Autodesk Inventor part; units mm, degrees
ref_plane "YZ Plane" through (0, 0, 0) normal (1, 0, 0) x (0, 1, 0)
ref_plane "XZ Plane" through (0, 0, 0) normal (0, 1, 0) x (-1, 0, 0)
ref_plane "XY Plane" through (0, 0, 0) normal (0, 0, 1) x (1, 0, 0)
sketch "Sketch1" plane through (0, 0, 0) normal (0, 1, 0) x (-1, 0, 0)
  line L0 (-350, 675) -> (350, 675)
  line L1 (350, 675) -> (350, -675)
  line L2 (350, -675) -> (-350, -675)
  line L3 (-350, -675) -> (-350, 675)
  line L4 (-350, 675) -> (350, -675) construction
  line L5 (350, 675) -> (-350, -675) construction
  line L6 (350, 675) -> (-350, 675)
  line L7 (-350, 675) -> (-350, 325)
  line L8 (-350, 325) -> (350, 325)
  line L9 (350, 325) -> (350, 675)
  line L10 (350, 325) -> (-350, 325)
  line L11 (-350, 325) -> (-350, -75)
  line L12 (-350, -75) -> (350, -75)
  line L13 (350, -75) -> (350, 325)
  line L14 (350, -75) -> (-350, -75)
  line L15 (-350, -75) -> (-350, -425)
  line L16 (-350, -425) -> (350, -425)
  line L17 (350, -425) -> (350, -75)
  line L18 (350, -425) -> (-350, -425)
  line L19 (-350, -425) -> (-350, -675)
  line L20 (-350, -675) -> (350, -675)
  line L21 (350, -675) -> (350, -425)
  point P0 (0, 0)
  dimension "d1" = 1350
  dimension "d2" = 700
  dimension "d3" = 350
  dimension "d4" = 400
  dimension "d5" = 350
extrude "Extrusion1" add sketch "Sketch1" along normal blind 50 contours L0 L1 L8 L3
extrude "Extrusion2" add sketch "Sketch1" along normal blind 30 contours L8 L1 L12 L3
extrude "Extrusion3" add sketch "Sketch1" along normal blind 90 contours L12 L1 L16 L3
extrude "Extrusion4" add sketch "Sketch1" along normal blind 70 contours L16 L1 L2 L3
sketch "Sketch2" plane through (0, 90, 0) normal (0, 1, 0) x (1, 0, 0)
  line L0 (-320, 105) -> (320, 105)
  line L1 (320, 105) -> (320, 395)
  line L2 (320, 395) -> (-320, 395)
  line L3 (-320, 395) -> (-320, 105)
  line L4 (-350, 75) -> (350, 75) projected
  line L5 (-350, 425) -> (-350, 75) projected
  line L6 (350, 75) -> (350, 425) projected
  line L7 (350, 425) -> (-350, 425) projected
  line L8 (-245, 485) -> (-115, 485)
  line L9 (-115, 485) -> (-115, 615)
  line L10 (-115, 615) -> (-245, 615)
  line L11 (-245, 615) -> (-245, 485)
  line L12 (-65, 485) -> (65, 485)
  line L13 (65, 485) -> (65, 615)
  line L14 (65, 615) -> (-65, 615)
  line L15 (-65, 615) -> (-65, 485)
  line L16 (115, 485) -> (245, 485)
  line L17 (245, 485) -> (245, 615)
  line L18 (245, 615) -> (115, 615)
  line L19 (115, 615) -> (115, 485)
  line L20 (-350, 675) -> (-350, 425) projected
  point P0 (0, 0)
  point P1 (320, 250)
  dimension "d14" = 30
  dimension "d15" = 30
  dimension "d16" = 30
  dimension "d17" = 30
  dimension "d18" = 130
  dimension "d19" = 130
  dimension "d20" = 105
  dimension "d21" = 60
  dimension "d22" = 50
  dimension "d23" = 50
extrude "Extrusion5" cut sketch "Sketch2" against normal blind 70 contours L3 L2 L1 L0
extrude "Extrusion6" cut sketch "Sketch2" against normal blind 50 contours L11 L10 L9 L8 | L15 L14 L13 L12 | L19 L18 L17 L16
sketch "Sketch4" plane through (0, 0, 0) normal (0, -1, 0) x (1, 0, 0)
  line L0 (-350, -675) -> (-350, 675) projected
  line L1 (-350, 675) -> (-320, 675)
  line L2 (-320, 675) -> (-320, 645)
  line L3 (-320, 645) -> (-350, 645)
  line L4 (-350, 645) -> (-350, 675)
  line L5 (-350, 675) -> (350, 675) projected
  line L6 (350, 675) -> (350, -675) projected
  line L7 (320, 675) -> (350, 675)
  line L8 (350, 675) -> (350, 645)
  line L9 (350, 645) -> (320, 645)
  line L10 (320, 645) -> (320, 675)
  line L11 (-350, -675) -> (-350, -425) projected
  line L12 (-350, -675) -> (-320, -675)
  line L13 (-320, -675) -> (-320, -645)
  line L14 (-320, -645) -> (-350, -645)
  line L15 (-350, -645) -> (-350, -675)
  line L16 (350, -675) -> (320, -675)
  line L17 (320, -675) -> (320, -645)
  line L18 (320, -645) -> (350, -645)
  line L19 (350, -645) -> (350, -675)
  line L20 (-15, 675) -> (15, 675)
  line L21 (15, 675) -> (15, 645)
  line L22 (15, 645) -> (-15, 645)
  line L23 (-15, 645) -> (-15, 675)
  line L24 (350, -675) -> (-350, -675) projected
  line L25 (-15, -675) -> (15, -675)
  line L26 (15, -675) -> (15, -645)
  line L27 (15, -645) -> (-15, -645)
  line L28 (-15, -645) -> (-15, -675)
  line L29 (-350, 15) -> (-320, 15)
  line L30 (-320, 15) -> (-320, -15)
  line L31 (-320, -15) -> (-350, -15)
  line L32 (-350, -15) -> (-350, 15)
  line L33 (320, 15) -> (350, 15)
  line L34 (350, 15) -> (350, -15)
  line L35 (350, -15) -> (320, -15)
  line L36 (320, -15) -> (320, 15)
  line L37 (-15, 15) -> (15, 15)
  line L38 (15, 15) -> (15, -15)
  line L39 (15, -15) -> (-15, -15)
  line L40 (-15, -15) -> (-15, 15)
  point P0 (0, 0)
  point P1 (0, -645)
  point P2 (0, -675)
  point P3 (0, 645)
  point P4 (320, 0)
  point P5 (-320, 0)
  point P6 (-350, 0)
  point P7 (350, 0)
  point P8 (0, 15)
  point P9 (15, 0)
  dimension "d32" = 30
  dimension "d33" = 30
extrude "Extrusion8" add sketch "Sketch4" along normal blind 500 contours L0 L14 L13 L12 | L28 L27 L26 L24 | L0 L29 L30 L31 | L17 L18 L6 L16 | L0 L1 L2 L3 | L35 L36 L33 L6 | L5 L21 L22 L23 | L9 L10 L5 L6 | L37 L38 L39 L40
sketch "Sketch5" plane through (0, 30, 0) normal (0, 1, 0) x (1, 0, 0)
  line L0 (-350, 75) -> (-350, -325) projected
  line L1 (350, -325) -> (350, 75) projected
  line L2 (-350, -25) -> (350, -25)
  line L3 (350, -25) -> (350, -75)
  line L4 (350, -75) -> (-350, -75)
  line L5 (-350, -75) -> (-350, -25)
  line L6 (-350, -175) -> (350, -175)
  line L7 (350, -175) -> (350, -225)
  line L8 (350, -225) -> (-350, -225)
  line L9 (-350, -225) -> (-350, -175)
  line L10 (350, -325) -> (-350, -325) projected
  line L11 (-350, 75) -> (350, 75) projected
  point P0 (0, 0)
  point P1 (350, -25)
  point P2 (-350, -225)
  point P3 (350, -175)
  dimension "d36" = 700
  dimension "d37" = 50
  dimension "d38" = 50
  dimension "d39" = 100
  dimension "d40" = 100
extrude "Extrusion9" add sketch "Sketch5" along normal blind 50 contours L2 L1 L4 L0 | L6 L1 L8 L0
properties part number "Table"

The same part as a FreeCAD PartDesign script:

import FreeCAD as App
import Part
import Sketcher
from FreeCAD import Vector

doc = App.newDocument("Part")
body = doc.addObject("PartDesign::Body", "Body")

# Sketch on XZ plane
sketch1 = body.newObject("Sketcher::SketchObject", "Sketch")
sketch1.AttachmentSupport = (doc.getObject("XZ_Plane"), [""])
sketch1.MapMode = "FlatFace"
sketch1.addGeometry([
    Part.LineSegment(Vector(-350, 675, 0), Vector(350, 675, 0)),
    Part.LineSegment(Vector(350, 675, 0), Vector(350, 325, 0)),
    Part.LineSegment(Vector(350, 325, 0), Vector(-350, 325, 0)),
    Part.LineSegment(Vector(-350, 325, 0), Vector(-350, 675, 0)),
], False)
sketch1.addConstraint([
    Sketcher.Constraint("Coincident", 0, 2, 1, 1),
    Sketcher.Constraint("Coincident", 1, 2, 2, 1),
    Sketcher.Constraint("Coincident", 2, 2, 3, 1),
    Sketcher.Constraint("Coincident", 3, 2, 0, 1),
    Sketcher.Constraint("Horizontal", 0),
    Sketcher.Constraint("Vertical", 1),
    Sketcher.Constraint("Horizontal", 2),
    Sketcher.Constraint("Vertical", 3),
    Sketcher.Constraint("DistanceX", 0, 1, 0, 2, 700.0),
    Sketcher.Constraint("DistanceY", 1, 2, 1, 1, 350.0),
    Sketcher.Constraint("DistanceX", -1, 1, 0, 2, 350.0),
    Sketcher.Constraint("DistanceY", -1, 1, 0, 2, 675.0),
])
pad1 = body.newObject("PartDesign::Pad", "Pad")
pad1.Profile = sketch1
pad1.Length = 50
pad1.Reversed = True

# Sketch on XZ plane
sketch2 = body.newObject("Sketcher::SketchObject", "Sketch001")
sketch2.AttachmentSupport = (doc.getObject("XZ_Plane"), [""])
sketch2.MapMode = "FlatFace"
sketch2.addGeometry([
    Part.LineSegment(Vector(-350, 325, 0), Vector(350, 325, 0)),
    Part.LineSegment(Vector(350, 325, 0), Vector(350, -75, 0)),
    Part.LineSegment(Vector(350, -75, 0), Vector(-350, -75, 0)),
    Part.LineSegment(Vector(-350, -75, 0), Vector(-350, 325, 0)),
], False)
sketch2.addConstraint([
    Sketcher.Constraint("Coincident", 0, 2, 1, 1),
    Sketcher.Constraint("Coincident", 1, 2, 2, 1),
    Sketcher.Constraint("Coincident", 2, 2, 3, 1),
    Sketcher.Constraint("Coincident", 3, 2, 0, 1),
    Sketcher.Constraint("Horizontal", 0),
    Sketcher.Constraint("Vertical", 1),
    Sketcher.Constraint("Horizontal", 2),
    Sketcher.Constraint("Vertical", 3),
    Sketcher.Constraint("DistanceX", 0, 1, 0, 2, 700.0),
    Sketcher.Constraint("DistanceY", 1, 2, 1, 1, 400.0),
    Sketcher.Constraint("DistanceX", -1, 1, 0, 2, 350.0),
    Sketcher.Constraint("DistanceY", -1, 1, 0, 2, 325.0),
])
pad2 = body.newObject("PartDesign::Pad", "Pad001")
pad2.Profile = sketch2
pad2.Length = 30
pad2.Reversed = True

# Sketch on XZ plane
sketch3 = body.newObject("Sketcher::SketchObject", "Sketch002")
sketch3.AttachmentSupport = (doc.getObject("XZ_Plane"), [""])
sketch3.MapMode = "FlatFace"
sketch3.addGeometry([
    Part.LineSegment(Vector(-350, -75, 0), Vector(350, -75, 0)),
    Part.LineSegment(Vector(350, -75, 0), Vector(350, -425, 0)),
    Part.LineSegment(Vector(350, -425, 0), Vector(-350, -425, 0)),
    Part.LineSegment(Vector(-350, -425, 0), Vector(-350, -75, 0)),
], False)
sketch3.addConstraint([
    Sketcher.Constraint("Coincident", 0, 2, 1, 1),
    Sketcher.Constraint("Coincident", 1, 2, 2, 1),
    Sketcher.Constraint("Coincident", 2, 2, 3, 1),
    Sketcher.Constraint("Coincident", 3, 2, 0, 1),
    Sketcher.Constraint("Horizontal", 0),
    Sketcher.Constraint("Vertical", 1),
    Sketcher.Constraint("Horizontal", 2),
    Sketcher.Constraint("Vertical", 3),
    Sketcher.Constraint("DistanceX", 0, 1, 0, 2, 700.0),
    Sketcher.Constraint("DistanceY", 1, 2, 1, 1, 350.0),
    Sketcher.Constraint("DistanceX", -1, 1, 0, 2, 350.0),
    Sketcher.Constraint("DistanceY", 0, 2, -1, 1, 75.0),
])
pad3 = body.newObject("PartDesign::Pad", "Pad002")
pad3.Profile = sketch3
pad3.Length = 90
pad3.Reversed = True

# Sketch on XZ plane
sketch4 = body.newObject("Sketcher::SketchObject", "Sketch003")
sketch4.AttachmentSupport = (doc.getObject("XZ_Plane"), [""])
sketch4.MapMode = "FlatFace"
sketch4.addGeometry([
    Part.LineSegment(Vector(-350, -425, 0), Vector(350, -425, 0)),
    Part.LineSegment(Vector(350, -425, 0), Vector(350, -675, 0)),
    Part.LineSegment(Vector(350, -675, 0), Vector(-350, -675, 0)),
    Part.LineSegment(Vector(-350, -675, 0), Vector(-350, -425, 0)),
], False)
sketch4.addConstraint([
    Sketcher.Constraint("Coincident", 0, 2, 1, 1),
    Sketcher.Constraint("Coincident", 1, 2, 2, 1),
    Sketcher.Constraint("Coincident", 2, 2, 3, 1),
    Sketcher.Constraint("Coincident", 3, 2, 0, 1),
    Sketcher.Constraint("Horizontal", 0),
    Sketcher.Constraint("Vertical", 1),
    Sketcher.Constraint("Horizontal", 2),
    Sketcher.Constraint("Vertical", 3),
    Sketcher.Constraint("DistanceX", 0, 1, 0, 2, 700.0),
    Sketcher.Constraint("DistanceX", -1, 1, 0, 2, 350.0),
    Sketcher.Constraint("DistanceY", 1, 2, 1, 1, 250.0),
    Sketcher.Constraint("DistanceY", 0, 2, -1, 1, 425.0),
])
pad4 = body.newObject("PartDesign::Pad", "Pad003")
pad4.Profile = sketch4
pad4.Length = 70
pad4.Reversed = True

# Sketch on XZ plane
sketch5 = body.newObject("Sketcher::SketchObject", "Sketch004")
sketch5.AttachmentSupport = (doc.getObject("XZ_Plane"), [""])
sketch5.MapMode = "FlatFace"
sketch5.AttachmentOffset = App.Placement(Vector(0, 0, -90), App.Rotation())
sketch5.addGeometry([
    Part.LineSegment(Vector(-320, -395, 0), Vector(-320, -105, 0)),
    Part.LineSegment(Vector(-320, -105, 0), Vector(320, -105, 0)),
    Part.LineSegment(Vector(320, -105, 0), Vector(320, -395, 0)),
    Part.LineSegment(Vector(320, -395, 0), Vector(-320, -395, 0)),
], False)
sketch5.addConstraint([
    Sketcher.Constraint("Coincident", 0, 2, 1, 1),
    Sketcher.Constraint("Coincident", 1, 2, 2, 1),
    Sketcher.Constraint("Coincident", 2, 2, 3, 1),
    Sketcher.Constraint("Coincident", 3, 2, 0, 1),
    Sketcher.Constraint("Vertical", 0),
    Sketcher.Constraint("Horizontal", 1),
    Sketcher.Constraint("Vertical", 2),
    Sketcher.Constraint("Horizontal", 3),
    Sketcher.Constraint("DistanceY", 0, 2, -1, 1, 105.0),
    Sketcher.Constraint("DistanceX", 1, 1, 1, 2, 640.0),
    Sketcher.Constraint("DistanceY", 0, 1, 0, 2, 290.0),
    Sketcher.Constraint("DistanceX", 0, 2, -1, 1, 320.0),
])
pocket1 = body.newObject("PartDesign::Pocket", "Pocket")
pocket1.Profile = sketch5
pocket1.Length = 70
pocket1.Reversed = True

# Sketch on XZ plane
sketch6 = body.newObject("Sketcher::SketchObject", "Sketch005")
sketch6.AttachmentSupport = (doc.getObject("XZ_Plane"), [""])
sketch6.MapMode = "FlatFace"
sketch6.AttachmentOffset = App.Placement(Vector(0, 0, -90), App.Rotation())
sketch6.addGeometry([
    Part.LineSegment(Vector(-245, -615, 0), Vector(-245, -485, 0)),  # 0
    Part.LineSegment(Vector(-245, -485, 0), Vector(-115, -485, 0)),  # 1
    Part.LineSegment(Vector(-115, -485, 0), Vector(-115, -615, 0)),  # 2
    Part.LineSegment(Vector(-115, -615, 0), Vector(-245, -615, 0)),  # 3
    Part.LineSegment(Vector(-65, -615, 0), Vector(-65, -485, 0)),  # 4
    Part.LineSegment(Vector(-65, -485, 0), Vector(65, -485, 0)),  # 5
    Part.LineSegment(Vector(65, -485, 0), Vector(65, -615, 0)),  # 6
    Part.LineSegment(Vector(65, -615, 0), Vector(-65, -615, 0)),  # 7
    Part.LineSegment(Vector(115, -615, 0), Vector(115, -485, 0)),  # 8
    Part.LineSegment(Vector(115, -485, 0), Vector(245, -485, 0)),  # 9
    Part.LineSegment(Vector(245, -485, 0), Vector(245, -615, 0)),  # 10
    Part.LineSegment(Vector(245, -615, 0), Vector(115, -615, 0)),  # 11
], False)
sketch6.addConstraint([
    Sketcher.Constraint("Coincident", 0, 2, 1, 1),
    Sketcher.Constraint("Coincident", 1, 2, 2, 1),
    Sketcher.Constraint("Coincident", 2, 2, 3, 1),
    Sketcher.Constraint("Coincident", 3, 2, 0, 1),
    Sketcher.Constraint("Coincident", 4, 2, 5, 1),
    Sketcher.Constraint("Coincident", 5, 2, 6, 1),
    Sketcher.Constraint("Coincident", 6, 2, 7, 1),
    Sketcher.Constraint("Coincident", 7, 2, 4, 1),
    Sketcher.Constraint("Coincident", 8, 2, 9, 1),
    Sketcher.Constraint("Coincident", 9, 2, 10, 1),
    Sketcher.Constraint("Coincident", 10, 2, 11, 1),
    Sketcher.Constraint("Coincident", 11, 2, 8, 1),
    Sketcher.Constraint("Vertical", 0),
    Sketcher.Constraint("Horizontal", 1),
    Sketcher.Constraint("Vertical", 2),
    Sketcher.Constraint("Horizontal", 3),
    Sketcher.Constraint("Vertical", 4),
    Sketcher.Constraint("Horizontal", 5),
    Sketcher.Constraint("Vertical", 6),
    Sketcher.Constraint("Horizontal", 7),
    Sketcher.Constraint("Vertical", 8),
    Sketcher.Constraint("Horizontal", 9),
    Sketcher.Constraint("Vertical", 10),
    Sketcher.Constraint("Horizontal", 11),
    Sketcher.Constraint("Symmetric", 1, 2, 8, 2, -2),
    Sketcher.Constraint("Symmetric", 3, 2, 10, 2, -2),
    Sketcher.Constraint("Horizontal", 1, 2, 4, 2),
    Sketcher.Constraint("Horizontal", 3, 2, 6, 2),
    Sketcher.Constraint("Equal", 3, 5),
    Sketcher.Constraint("Equal", 11, 0),
    Sketcher.Constraint("DistanceX", 1, 1, 1, 2, 130.0),
    Sketcher.Constraint("DistanceX", 1, 2, 4, 2, 50.0),
    Sketcher.Constraint("DistanceX", 5, 2, 8, 2, 50.0),
    Sketcher.Constraint("DistanceY", 0, 2, -1, 1, 485.0),
])
pocket2 = body.newObject("PartDesign::Pocket", "Pocket001")
pocket2.Profile = sketch6
pocket2.Length = 50
pocket2.Reversed = True

# Sketch on XZ plane
sketch7 = body.newObject("Sketcher::SketchObject", "Sketch006")
sketch7.AttachmentSupport = (doc.getObject("XZ_Plane"), [""])
sketch7.MapMode = "FlatFace"
sketch7.addGeometry([
    Part.LineSegment(Vector(-350, -645, 0), Vector(-350, -675, 0)),  # 0
    Part.LineSegment(Vector(-350, -675, 0), Vector(-320, -675, 0)),  # 1
    Part.LineSegment(Vector(-320, -675, 0), Vector(-320, -645, 0)),  # 2
    Part.LineSegment(Vector(-320, -645, 0), Vector(-350, -645, 0)),  # 3
    Part.LineSegment(Vector(-15, -645, 0), Vector(-15, -675, 0)),  # 4
    Part.LineSegment(Vector(-15, -675, 0), Vector(15, -675, 0)),  # 5
    Part.LineSegment(Vector(15, -675, 0), Vector(15, -645, 0)),  # 6
    Part.LineSegment(Vector(15, -645, 0), Vector(-15, -645, 0)),  # 7
    Part.LineSegment(Vector(-350, 15, 0), Vector(-350, -15, 0)),  # 8
    Part.LineSegment(Vector(-350, -15, 0), Vector(-320, -15, 0)),  # 9
    Part.LineSegment(Vector(-320, -15, 0), Vector(-320, 15, 0)),  # 10
    Part.LineSegment(Vector(-320, 15, 0), Vector(-350, 15, 0)),  # 11
    Part.LineSegment(Vector(320, -645, 0), Vector(320, -675, 0)),  # 12
    Part.LineSegment(Vector(320, -675, 0), Vector(350, -675, 0)),  # 13
    Part.LineSegment(Vector(350, -675, 0), Vector(350, -645, 0)),  # 14
    Part.LineSegment(Vector(350, -645, 0), Vector(320, -645, 0)),  # 15
    Part.LineSegment(Vector(-350, 675, 0), Vector(-350, 645, 0)),  # 16
    Part.LineSegment(Vector(-350, 645, 0), Vector(-320, 645, 0)),  # 17
    Part.LineSegment(Vector(-320, 645, 0), Vector(-320, 675, 0)),  # 18
    Part.LineSegment(Vector(-320, 675, 0), Vector(-350, 675, 0)),  # 19
    Part.LineSegment(Vector(320, -15, 0), Vector(350, -15, 0)),  # 20
    Part.LineSegment(Vector(350, -15, 0), Vector(350, 15, 0)),  # 21
    Part.LineSegment(Vector(350, 15, 0), Vector(320, 15, 0)),  # 22
    Part.LineSegment(Vector(320, 15, 0), Vector(320, -15, 0)),  # 23
    Part.LineSegment(Vector(15, 675, 0), Vector(-15, 675, 0)),  # 24
    Part.LineSegment(Vector(-15, 675, 0), Vector(-15, 645, 0)),  # 25
    Part.LineSegment(Vector(-15, 645, 0), Vector(15, 645, 0)),  # 26
    Part.LineSegment(Vector(15, 645, 0), Vector(15, 675, 0)),  # 27
    Part.LineSegment(Vector(320, 645, 0), Vector(350, 645, 0)),  # 28
    Part.LineSegment(Vector(350, 645, 0), Vector(350, 675, 0)),  # 29
    Part.LineSegment(Vector(350, 675, 0), Vector(320, 675, 0)),  # 30
    Part.LineSegment(Vector(320, 675, 0), Vector(320, 645, 0)),  # 31
    Part.LineSegment(Vector(15, 15, 0), Vector(-15, 15, 0)),  # 32
    Part.LineSegment(Vector(-15, 15, 0), Vector(-15, -15, 0)),  # 33
    Part.LineSegment(Vector(-15, -15, 0), Vector(15, -15, 0)),  # 34
    Part.LineSegment(Vector(15, -15, 0), Vector(15, 15, 0)),  # 35
], False)
sketch7.addConstraint([
    Sketcher.Constraint("Coincident", 0, 2, 1, 1),
    Sketcher.Constraint("Coincident", 1, 2, 2, 1),
    Sketcher.Constraint("Coincident", 2, 2, 3, 1),
    Sketcher.Constraint("Coincident", 3, 2, 0, 1),
    Sketcher.Constraint("Coincident", 4, 2, 5, 1),
    Sketcher.Constraint("Coincident", 5, 2, 6, 1),
    Sketcher.Constraint("Coincident", 6, 2, 7, 1),
    Sketcher.Constraint("Coincident", 7, 2, 4, 1),
    Sketcher.Constraint("Coincident", 8, 2, 9, 1),
    Sketcher.Constraint("Coincident", 9, 2, 10, 1),
    Sketcher.Constraint("Coincident", 10, 2, 11, 1),
    Sketcher.Constraint("Coincident", 11, 2, 8, 1),
    Sketcher.Constraint("Coincident", 12, 2, 13, 1),
    Sketcher.Constraint("Coincident", 13, 2, 14, 1),
    Sketcher.Constraint("Coincident", 14, 2, 15, 1),
    Sketcher.Constraint("Coincident", 15, 2, 12, 1),
    Sketcher.Constraint("Coincident", 16, 2, 17, 1),
    Sketcher.Constraint("Coincident", 17, 2, 18, 1),
    Sketcher.Constraint("Coincident", 18, 2, 19, 1),
    Sketcher.Constraint("Coincident", 19, 2, 16, 1),
    Sketcher.Constraint("Coincident", 20, 2, 21, 1),
    Sketcher.Constraint("Coincident", 21, 2, 22, 1),
    Sketcher.Constraint("Coincident", 22, 2, 23, 1),
    Sketcher.Constraint("Coincident", 23, 2, 20, 1),
    Sketcher.Constraint("Coincident", 24, 2, 25, 1),
    Sketcher.Constraint("Coincident", 25, 2, 26, 1),
    Sketcher.Constraint("Coincident", 26, 2, 27, 1),
    Sketcher.Constraint("Coincident", 27, 2, 24, 1),
    Sketcher.Constraint("Coincident", 28, 2, 29, 1),
    Sketcher.Constraint("Coincident", 29, 2, 30, 1),
    Sketcher.Constraint("Coincident", 30, 2, 31, 1),
    Sketcher.Constraint("Coincident", 31, 2, 28, 1),
    Sketcher.Constraint("Coincident", 32, 2, 33, 1),
    Sketcher.Constraint("Coincident", 33, 2, 34, 1),
    Sketcher.Constraint("Coincident", 34, 2, 35, 1),
    Sketcher.Constraint("Coincident", 35, 2, 32, 1),
    Sketcher.Constraint("Vertical", 0),
    Sketcher.Constraint("Horizontal", 1),
    Sketcher.Constraint("Vertical", 2),
    Sketcher.Constraint("Horizontal", 3),
    Sketcher.Constraint("Vertical", 4),
    Sketcher.Constraint("Horizontal", 5),
    Sketcher.Constraint("Vertical", 6),
    Sketcher.Constraint("Horizontal", 7),
    Sketcher.Constraint("Vertical", 8),
    Sketcher.Constraint("Horizontal", 9),
    Sketcher.Constraint("Vertical", 10),
    Sketcher.Constraint("Horizontal", 11),
    Sketcher.Constraint("Vertical", 12),
    Sketcher.Constraint("Horizontal", 13),
    Sketcher.Constraint("Vertical", 14),
    Sketcher.Constraint("Horizontal", 15),
    Sketcher.Constraint("Vertical", 16),
    Sketcher.Constraint("Horizontal", 17),
    Sketcher.Constraint("Vertical", 18),
    Sketcher.Constraint("Horizontal", 19),
    Sketcher.Constraint("Horizontal", 20),
    Sketcher.Constraint("Vertical", 21),
    Sketcher.Constraint("Horizontal", 22),
    Sketcher.Constraint("Vertical", 23),
    Sketcher.Constraint("Horizontal", 24),
    Sketcher.Constraint("Vertical", 25),
    Sketcher.Constraint("Horizontal", 26),
    Sketcher.Constraint("Vertical", 27),
    Sketcher.Constraint("Horizontal", 28),
    Sketcher.Constraint("Vertical", 29),
    Sketcher.Constraint("Horizontal", 30),
    Sketcher.Constraint("Vertical", 31),
    Sketcher.Constraint("Horizontal", 32),
    Sketcher.Constraint("Vertical", 33),
    Sketcher.Constraint("Horizontal", 34),
    Sketcher.Constraint("Vertical", 35),
    Sketcher.Constraint("Symmetric", 14, 2, 16, 2, -1, 1),
    Sketcher.Constraint("Symmetric", 12, 2, 18, 2, -1, 1),
    Sketcher.Constraint("Symmetric", 11, 2, 20, 2, -1, 1),
    Sketcher.Constraint("Symmetric", 9, 2, 22, 2, -1, 1),
    Sketcher.Constraint("Symmetric", 5, 2, 24, 2, -1, 1),
    Sketcher.Constraint("Symmetric", 7, 2, 26, 2, -1, 1),
    Sketcher.Constraint("Symmetric", 3, 2, 28, 2, -1, 1),
    Sketcher.Constraint("Symmetric", 1, 2, 30, 2, -1, 1),
    Sketcher.Constraint("Symmetric", 32, 2, 34, 2, -1, 1),
    Sketcher.Constraint("Symmetric", 1, 2, 12, 2, -2),
    Sketcher.Constraint("Symmetric", 3, 2, 14, 2, -2),
    Sketcher.Constraint("Horizontal", 1, 2, 4, 2),
    Sketcher.Constraint("Horizontal", 3, 2, 6, 2),
    Sketcher.Constraint("Horizontal", 9, 2, 20, 2),
    Sketcher.Constraint("Horizontal", 22, 2, 32, 2),
    Sketcher.Constraint("Vertical", 3, 2, 8, 2),
    Sketcher.Constraint("Vertical", 2, 2, 9, 2),
    Sketcher.Constraint("Vertical", 7, 2, 24, 2),
    Sketcher.Constraint("Vertical", 25, 2, 32, 2),
    Sketcher.Constraint("Equal", 3, 5),
    Sketcher.Constraint("Equal", 34, 0),
    Sketcher.Constraint("Equal", 6, 8),
    Sketcher.Constraint("DistanceX", 1, 1, 1, 2, 30.0),
    Sketcher.Constraint("DistanceX", 0, 2, -1, 1, 350.0),
    Sketcher.Constraint("DistanceY", 0, 2, -1, 1, 675.0),
])
pad5 = body.newObject("PartDesign::Pad", "Pad004")
pad5.Profile = sketch7
pad5.Length = 500

# Sketch on XZ plane
sketch8 = body.newObject("Sketcher::SketchObject", "Sketch007")
sketch8.AttachmentSupport = (doc.getObject("XZ_Plane"), [""])
sketch8.MapMode = "FlatFace"
sketch8.AttachmentOffset = App.Placement(Vector(0, 0, -30), App.Rotation())
sketch8.addGeometry([
    Part.LineSegment(Vector(350, 25, 0), Vector(-350, 25, 0)),  # 0
    Part.LineSegment(Vector(-350, 25, 0), Vector(-350, 75, 0)),  # 1
    Part.LineSegment(Vector(-350, 75, 0), Vector(350, 75, 0)),  # 2
    Part.LineSegment(Vector(350, 75, 0), Vector(350, 25, 0)),  # 3
    Part.LineSegment(Vector(350, 175, 0), Vector(-350, 175, 0)),  # 4
    Part.LineSegment(Vector(-350, 175, 0), Vector(-350, 225, 0)),  # 5
    Part.LineSegment(Vector(-350, 225, 0), Vector(350, 225, 0)),  # 6
    Part.LineSegment(Vector(350, 225, 0), Vector(350, 175, 0)),  # 7
], False)
sketch8.addConstraint([
    Sketcher.Constraint("Coincident", 0, 2, 1, 1),
    Sketcher.Constraint("Coincident", 1, 2, 2, 1),
    Sketcher.Constraint("Coincident", 2, 2, 3, 1),
    Sketcher.Constraint("Coincident", 3, 2, 0, 1),
    Sketcher.Constraint("Coincident", 4, 2, 5, 1),
    Sketcher.Constraint("Coincident", 5, 2, 6, 1),
    Sketcher.Constraint("Coincident", 6, 2, 7, 1),
    Sketcher.Constraint("Coincident", 7, 2, 4, 1),
    Sketcher.Constraint("Horizontal", 0),
    Sketcher.Constraint("Vertical", 1),
    Sketcher.Constraint("Horizontal", 2),
    Sketcher.Constraint("Vertical", 3),
    Sketcher.Constraint("Horizontal", 4),
    Sketcher.Constraint("Vertical", 5),
    Sketcher.Constraint("Horizontal", 6),
    Sketcher.Constraint("Vertical", 7),
    Sketcher.Constraint("Vertical", 1, 2, 4, 2),
    Sketcher.Constraint("Vertical", 3, 2, 6, 2),
    Sketcher.Constraint("Equal", 3, 5),
    Sketcher.Constraint("DistanceX", 0, 2, 0, 1, 700.0),
    Sketcher.Constraint("DistanceY", 1, 1, 1, 2, 50.0),
    Sketcher.Constraint("DistanceY", 1, 2, 4, 2, 100.0),
    Sketcher.Constraint("DistanceX", 0, 2, -1, 1, 350.0),
    Sketcher.Constraint("DistanceY", -1, 1, 0, 2, 25.0),
])
pad6 = body.newObject("PartDesign::Pad", "Pad005")
pad6.Profile = sketch8
pad6.Length = 50
pad6.Reversed = True

doc.recompute()
